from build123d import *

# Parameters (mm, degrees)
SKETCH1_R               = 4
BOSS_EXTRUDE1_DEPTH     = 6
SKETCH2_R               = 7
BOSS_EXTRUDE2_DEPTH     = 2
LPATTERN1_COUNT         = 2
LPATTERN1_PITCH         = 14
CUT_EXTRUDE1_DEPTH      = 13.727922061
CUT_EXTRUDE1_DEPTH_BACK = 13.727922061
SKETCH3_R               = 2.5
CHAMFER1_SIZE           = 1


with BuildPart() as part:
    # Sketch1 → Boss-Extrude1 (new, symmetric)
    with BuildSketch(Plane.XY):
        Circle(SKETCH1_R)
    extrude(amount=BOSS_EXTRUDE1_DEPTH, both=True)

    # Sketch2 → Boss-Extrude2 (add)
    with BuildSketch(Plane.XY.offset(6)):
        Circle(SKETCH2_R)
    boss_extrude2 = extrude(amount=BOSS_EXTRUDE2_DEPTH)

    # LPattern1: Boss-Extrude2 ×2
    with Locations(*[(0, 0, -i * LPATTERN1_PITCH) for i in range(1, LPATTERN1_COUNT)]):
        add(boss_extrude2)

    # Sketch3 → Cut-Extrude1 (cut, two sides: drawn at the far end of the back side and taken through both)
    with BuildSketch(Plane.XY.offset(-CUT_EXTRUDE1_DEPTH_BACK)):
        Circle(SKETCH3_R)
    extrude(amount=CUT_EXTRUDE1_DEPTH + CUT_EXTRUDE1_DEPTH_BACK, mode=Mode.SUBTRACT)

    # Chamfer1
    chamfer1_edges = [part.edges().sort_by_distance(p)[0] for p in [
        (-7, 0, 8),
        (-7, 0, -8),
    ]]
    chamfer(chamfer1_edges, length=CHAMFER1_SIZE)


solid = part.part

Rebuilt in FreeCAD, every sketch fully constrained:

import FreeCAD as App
import Part
import Sketcher
from FreeCAD import Vector


def edges_at(feature, points):
    """Names of the edges that pass closest to the given points."""
    edges = feature.Shape.Edges
    near = lambda p: min(range(len(edges)), key=lambda i: edges[i].distToShape(Part.Vertex(*p))[0])
    return sorted({f"Edge{near(p) + 1}" for p in points})

doc = App.newDocument("Part")
params = doc.addObject("Spreadsheet::Sheet", "Params")
for row, (alias, value) in enumerate([
    ("sketch1_diameter", "8 mm"),
    ("pad1_length", "12 mm"),
    ("sketch2_diameter", "14 mm"),
    ("pad2_length", "2 mm"),
    ("linearpattern_pitch", "14 mm"),
    ("sketch3_diameter", "5 mm"),
    ("chamfer_size", "1 mm"),
], start=1):
    params.set(f"A{row}", alias)
    params.set(f"B{row}", "=" + value)
    params.setAlias(f"B{row}", alias)

body = doc.addObject("PartDesign::Body", "Body")

# Sketch on XY plane
sketch1 = doc.addObject("Sketcher::SketchObject", "Sketch")
body.addObject(sketch1)
sketch1.AttachmentSupport = (doc.XY_Plane, [""])
sketch1.MapMode = "FlatFace"
sketch1.addGeometry(Part.Circle(Vector(0, 0, 0), Vector(0, 0, 1), 4), False)
sketch1.addConstraint(Sketcher.Constraint("Coincident", 0, 3, -1, 1))
sketch1.addConstraint(Sketcher.Constraint("Diameter", 0, 8.0))
sketch1.setExpression("Constraints[1]", "Params.sketch1_diameter")
pad1 = doc.addObject("PartDesign::Pad", "Pad")
body.addObject(pad1)
pad1.Profile = sketch1
pad1.setExpression("Length", "Params.pad1_length")
pad1.Midplane = True

# Sketch on XY plane
sketch2 = doc.addObject("Sketcher::SketchObject", "Sketch001")
body.addObject(sketch2)
sketch2.AttachmentSupport = (doc.XY_Plane, [""])
sketch2.MapMode = "FlatFace"
sketch2.AttachmentOffset = App.Placement(Vector(0, 0, 6), App.Rotation())
sketch2.addGeometry(Part.Circle(Vector(0, 0, 0), Vector(0, 0, 1), 7), False)
sketch2.addConstraint(Sketcher.Constraint("Coincident", 0, 3, -1, 1))
sketch2.addConstraint(Sketcher.Constraint("Diameter", 0, 14.0))
sketch2.setExpression("Constraints[1]", "Params.sketch2_diameter")
pad2 = doc.addObject("PartDesign::Pad", "Pad001")
body.addObject(pad2)
pad2.Profile = sketch2
pad2.setExpression("Length", "Params.pad2_length")
doc.recompute()

linearpattern = doc.addObject("PartDesign::LinearPattern", "LinearPattern")
body.addObject(linearpattern)
linearpattern.Originals = [pad2]
linearpattern.Direction = (doc.Z_Axis, [""])
linearpattern.Mode = "offset"
linearpattern.setExpression("Offset", "Params.linearpattern_pitch")
linearpattern.Occurrences = 2
linearpattern.Reversed = True
body.Tip = linearpattern

# Sketch on XY plane
sketch3 = doc.addObject("Sketcher::SketchObject", "Sketch002")
body.addObject(sketch3)
sketch3.AttachmentSupport = (doc.XY_Plane, [""])
sketch3.MapMode = "FlatFace"
sketch3.addGeometry(Part.Circle(Vector(0, 0, 0), Vector(0, 0, 1), 2.5), False)
sketch3.addConstraint(Sketcher.Constraint("Coincident", 0, 3, -1, 1))
sketch3.addConstraint(Sketcher.Constraint("Diameter", 0, 5.0))
sketch3.setExpression("Constraints[1]", "Params.sketch3_diameter")
pocket1 = doc.addObject("PartDesign::Pocket", "Pocket")
body.addObject(pocket1)
pocket1.Profile = sketch3
pocket1.Type = "ThroughAll"
pocket1.Midplane = True
doc.recompute()

chamfer = doc.addObject("PartDesign::Chamfer", "Chamfer")
body.addObject(chamfer)
chamfer.Base = (pocket1, edges_at(pocket1, [(-7, 0, 8), (-7, 0, -8)]))
chamfer.setExpression("Size", "Params.chamfer_size")

doc.recompute()
